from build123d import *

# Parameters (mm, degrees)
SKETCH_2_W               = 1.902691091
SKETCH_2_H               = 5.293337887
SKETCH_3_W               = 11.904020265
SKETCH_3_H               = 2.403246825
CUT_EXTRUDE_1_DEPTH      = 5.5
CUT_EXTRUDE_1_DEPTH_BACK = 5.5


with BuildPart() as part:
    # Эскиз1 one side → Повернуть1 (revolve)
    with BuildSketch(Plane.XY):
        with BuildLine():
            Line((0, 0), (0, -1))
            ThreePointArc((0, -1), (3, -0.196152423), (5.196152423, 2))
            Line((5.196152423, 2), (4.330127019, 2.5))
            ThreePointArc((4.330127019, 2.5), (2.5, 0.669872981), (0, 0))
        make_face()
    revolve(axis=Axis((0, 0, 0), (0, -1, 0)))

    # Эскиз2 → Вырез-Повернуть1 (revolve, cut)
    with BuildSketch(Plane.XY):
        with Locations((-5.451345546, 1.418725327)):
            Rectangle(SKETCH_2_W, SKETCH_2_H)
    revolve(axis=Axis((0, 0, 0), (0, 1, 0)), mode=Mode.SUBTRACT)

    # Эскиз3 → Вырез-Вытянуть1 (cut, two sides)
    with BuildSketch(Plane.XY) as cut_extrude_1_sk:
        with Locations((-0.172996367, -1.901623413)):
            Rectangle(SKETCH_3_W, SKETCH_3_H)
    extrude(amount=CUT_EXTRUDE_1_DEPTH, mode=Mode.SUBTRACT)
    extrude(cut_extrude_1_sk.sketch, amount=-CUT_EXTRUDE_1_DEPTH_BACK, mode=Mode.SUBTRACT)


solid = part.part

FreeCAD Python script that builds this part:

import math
import FreeCAD as App
import Part
import Sketcher

V = App.Vector
Q = App.Units.Quantity

doc = App.newDocument("Part")
params = doc.addObject("Spreadsheet::Sheet", "Params")
for row, (alias, value) in enumerate([
    ("sketch1_radius", "6 mm"),
    ("sketch1_radius2", "5 mm"),
    ("revolution_angle", "360 deg"),
    ("groove_angle", "360 deg"),
], start=1):
    params.set(f"A{row}", alias)
    params.set(f"B{row}", "=" + value)
    params.setAlias(f"B{row}", alias)

body = doc.addObject("PartDesign::Body", "Body")

# Sketch on XY plane
sketch1 = body.newObject("Sketcher::SketchObject", "Sketch")
sketch1.AttachmentSupport = (doc.getObject("XY_Plane"), [""])
sketch1.MapMode = "FlatFace"
sketch1.addGeometry([
    Part.LineSegment(V(0, 0, 0), V(0, -1, 0)),
    Part.ArcOfCircle(Part.Circle(V(0, 5, 0), V(0, 0, 1), 6), math.radians(-90), math.radians(-30)),
    Part.LineSegment(V(5.2, 2, 0), V(4.3, 2.5, 0)),
    Part.ArcOfCircle(Part.Circle(V(0, 5, 0), V(0, 0, 1), 5), math.radians(-90), math.radians(-30)),
], False)
sketch1.addConstraint([
    Sketcher.Constraint("Coincident", 0, 2, 1, 1),
    Sketcher.Constraint("Coincident", 1, 2, 2, 1),
    Sketcher.Constraint("Coincident", 2, 2, 3, 2),
    Sketcher.Constraint("Coincident", 3, 1, 0, 1),
    Sketcher.Constraint("Vertical", 0),
    Sketcher.Constraint("Coincident", 3, 1, -1, 1),
    Sketcher.Constraint("Coincident", 3, 3, 1, 3),
    Sketcher.Constraint("PointOnObject", 1, 3, -2),
    Sketcher.Constraint("Radius", 1, Q("6 mm")),
    Sketcher.Constraint("Radius", 3, Q("5 mm")),
    Sketcher.Constraint("Angle", 2, Q("150 deg")),
    Sketcher.Constraint("DistanceY", -1, 1, 1, 2, Q("2 mm")),
])
sketch1.setExpression("Constraints[8]", "Params.sketch1_radius")
sketch1.setExpression("Constraints[9]", "Params.sketch1_radius2")
revolution = body.newObject("PartDesign::Revolution", "Revolution")
revolution.Profile = sketch1
revolution.ReferenceAxis = (sketch1, ["V_Axis"])
revolution.setExpression("Angle", "Params.revolution_angle")

# Sketch on XY plane
sketch2 = body.newObject("Sketcher::SketchObject", "Sketch001")
sketch2.AttachmentSupport = (doc.getObject("XY_Plane"), [""])
sketch2.MapMode = "FlatFace"
sketch2.addGeometry([
    Part.LineSegment(V(-6.4, 4.1, 0), V(-6.4, -1.2, 0)),
    Part.LineSegment(V(-6.4, -1.2, 0), V(-4.5, -1.2, 0)),
    Part.LineSegment(V(-4.5, -1.2, 0), V(-4.5, 4.1, 0)),
    Part.LineSegment(V(-4.5, 4.1, 0), V(-6.4, 4.1, 0)),
], False)
sketch2.addConstraint([
    Sketcher.Constraint("Coincident", 0, 2, 1, 1),
    Sketcher.Constraint("Coincident", 1, 2, 2, 1),
    Sketcher.Constraint("Coincident", 2, 2, 3, 1),
    Sketcher.Constraint("Coincident", 3, 2, 0, 1),
    Sketcher.Constraint("Vertical", 0),
    Sketcher.Constraint("Horizontal", 1),
    Sketcher.Constraint("Vertical", 2),
    Sketcher.Constraint("Horizontal", 3),
    Sketcher.Constraint("DistanceX", 1, 2, -1, 1, Q("4.5 mm")),
    Sketcher.Constraint("DistanceX", 1, 1, 1, 2, Q("1.902691 mm")),
    Sketcher.Constraint("DistanceY", 0, 2, 0, 1, Q("5.293338 mm")),
    Sketcher.Constraint("DistanceY", 0, 2, -1, 1, Q("1.227944 mm")),
])
groove = body.newObject("PartDesign::Groove", "Groove")
groove.Profile = sketch2
groove.ReferenceAxis = (sketch2, ["V_Axis"])
groove.setExpression("Angle", "Params.groove_angle")

# Sketch on XY plane
sketch3 = body.newObject("Sketcher::SketchObject", "Sketch002")
sketch3.AttachmentSupport = (doc.getObject("XY_Plane"), [""])
sketch3.MapMode = "FlatFace"
sketch3.addGeometry([
    Part.LineSegment(V(-6.1, -0.7, 0), V(-6.1, -3.1, 0)),
    Part.LineSegment(V(-6.1, -3.1, 0), V(5.8, -3.1, 0)),
    Part.LineSegment(V(5.8, -3.1, 0), V(5.8, -0.7, 0)),
    Part.LineSegment(V(5.8, -0.7, 0), V(-6.1, -0.7, 0)),
], False)
sketch3.addConstraint([
    Sketcher.Constraint("Coincident", 0, 2, 1, 1),
    Sketcher.Constraint("Coincident", 1, 2, 2, 1),
    Sketcher.Constraint("Coincident", 2, 2, 3, 1),
    Sketcher.Constraint("Coincident", 3, 2, 0, 1),
    Sketcher.Constraint("Vertical", 0),
    Sketcher.Constraint("Horizontal", 1),
    Sketcher.Constraint("Vertical", 2),
    Sketcher.Constraint("Horizontal", 3),
    Sketcher.Constraint("DistanceY", 2, 2, -1, 1, Q("0.7 mm")),
    Sketcher.Constraint("DistanceX", 1, 1, 1, 2, Q("11.90402 mm")),
    Sketcher.Constraint("DistanceY", 0, 2, 0, 1, Q("2.403247 mm")),
    Sketcher.Constraint("DistanceX", 0, 2, -1, 1, Q("6.125006 mm")),
])
pocket1 = body.newObject("PartDesign::Pocket", "Pocket")
pocket1.Profile = sketch3
pocket1.Type = "ThroughAll"
pocket1.Midplane = True

doc.recompute()
